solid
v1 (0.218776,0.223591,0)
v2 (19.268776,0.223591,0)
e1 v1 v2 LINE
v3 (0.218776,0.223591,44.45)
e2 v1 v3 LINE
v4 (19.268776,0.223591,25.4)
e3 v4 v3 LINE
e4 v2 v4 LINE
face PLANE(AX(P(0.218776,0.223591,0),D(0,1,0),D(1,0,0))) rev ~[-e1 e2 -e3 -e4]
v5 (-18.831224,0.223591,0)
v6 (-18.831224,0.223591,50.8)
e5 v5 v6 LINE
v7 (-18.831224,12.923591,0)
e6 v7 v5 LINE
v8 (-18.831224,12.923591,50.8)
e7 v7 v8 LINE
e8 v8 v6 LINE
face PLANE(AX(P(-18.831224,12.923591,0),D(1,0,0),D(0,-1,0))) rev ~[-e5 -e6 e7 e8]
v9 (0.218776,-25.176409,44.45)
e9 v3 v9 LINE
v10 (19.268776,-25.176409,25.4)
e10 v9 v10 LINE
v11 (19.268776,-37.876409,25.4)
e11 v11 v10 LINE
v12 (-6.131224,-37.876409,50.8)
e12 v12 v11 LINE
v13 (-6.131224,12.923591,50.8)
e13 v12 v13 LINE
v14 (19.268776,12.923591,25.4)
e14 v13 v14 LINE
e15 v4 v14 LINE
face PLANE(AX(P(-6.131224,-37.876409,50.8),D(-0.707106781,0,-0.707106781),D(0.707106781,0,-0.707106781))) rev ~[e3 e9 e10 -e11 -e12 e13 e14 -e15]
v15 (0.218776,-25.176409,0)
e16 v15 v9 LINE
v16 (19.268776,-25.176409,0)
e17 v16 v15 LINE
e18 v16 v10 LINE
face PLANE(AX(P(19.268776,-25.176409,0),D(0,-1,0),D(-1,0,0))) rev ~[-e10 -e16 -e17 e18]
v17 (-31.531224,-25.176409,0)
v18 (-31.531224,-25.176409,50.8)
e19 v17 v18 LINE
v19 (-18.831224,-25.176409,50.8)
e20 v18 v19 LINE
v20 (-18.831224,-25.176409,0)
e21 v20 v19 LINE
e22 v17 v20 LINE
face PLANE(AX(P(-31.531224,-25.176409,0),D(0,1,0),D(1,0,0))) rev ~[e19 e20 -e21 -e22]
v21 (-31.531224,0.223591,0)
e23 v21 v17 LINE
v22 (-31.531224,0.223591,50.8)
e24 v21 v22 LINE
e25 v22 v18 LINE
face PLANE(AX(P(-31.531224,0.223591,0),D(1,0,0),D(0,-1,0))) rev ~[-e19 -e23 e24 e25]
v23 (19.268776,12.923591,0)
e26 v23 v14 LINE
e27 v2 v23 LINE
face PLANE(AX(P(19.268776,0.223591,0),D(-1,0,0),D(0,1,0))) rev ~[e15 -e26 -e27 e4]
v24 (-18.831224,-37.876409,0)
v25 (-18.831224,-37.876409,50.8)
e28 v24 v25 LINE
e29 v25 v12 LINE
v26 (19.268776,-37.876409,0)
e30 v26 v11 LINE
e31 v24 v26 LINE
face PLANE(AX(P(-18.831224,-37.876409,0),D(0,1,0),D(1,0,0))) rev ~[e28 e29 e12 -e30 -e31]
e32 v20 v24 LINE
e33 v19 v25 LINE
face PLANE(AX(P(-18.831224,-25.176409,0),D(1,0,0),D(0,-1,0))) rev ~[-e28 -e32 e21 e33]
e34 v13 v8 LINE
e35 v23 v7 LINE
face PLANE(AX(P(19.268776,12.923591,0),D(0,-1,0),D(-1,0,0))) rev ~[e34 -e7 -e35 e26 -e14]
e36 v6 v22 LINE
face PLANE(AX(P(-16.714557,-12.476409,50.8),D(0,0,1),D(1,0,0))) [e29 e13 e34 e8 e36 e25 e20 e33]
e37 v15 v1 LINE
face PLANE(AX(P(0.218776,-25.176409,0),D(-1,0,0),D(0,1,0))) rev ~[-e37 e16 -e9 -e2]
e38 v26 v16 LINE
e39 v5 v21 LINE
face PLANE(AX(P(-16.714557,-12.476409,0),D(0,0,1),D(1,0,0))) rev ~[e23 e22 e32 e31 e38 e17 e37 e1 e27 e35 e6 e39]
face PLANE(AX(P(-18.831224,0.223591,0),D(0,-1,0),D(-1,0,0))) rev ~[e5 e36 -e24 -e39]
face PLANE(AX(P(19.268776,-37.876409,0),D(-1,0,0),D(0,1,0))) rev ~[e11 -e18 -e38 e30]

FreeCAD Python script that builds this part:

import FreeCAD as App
import Part
import Sketcher
Q = App.Units.Quantity

doc = App.newDocument("Part")
params = doc.addObject("Spreadsheet::Sheet", "Params")
for row, (alias, value) in enumerate([
    ("sketch1_height", "1 in"),
    ("sketch1_width", "0.5 in"),
    ("sketch1_width2", "1.5 in"),
    ("sketch1_width3", "0.75 in"),
    ("pad1_length", "2 in"),
    ("sketch2_width", "1 in"),
], start=1):
    params.set(f"A{row}", alias)
    params.set(f"B{row}", "=" + value)
    params.setAlias(f"B{row}", alias)

body = doc.addObject("PartDesign::Body", "Body")

# Sketch on XY plane
sketch1 = body.newObject("Sketcher::SketchObject", "Sketch")
sketch1.AttachmentSupport = (doc.getObject("XY_Plane"), [""])
sketch1.MapMode = "FlatFace"
sketch1.addGeometry([
    Part.LineSegment(App.Vector(-19, 13, 0), App.Vector(-19, 0, 0)),  # 0
    Part.LineSegment(App.Vector(-19, 0, 0), App.Vector(-32, 0, 0)),  # 1
    Part.LineSegment(App.Vector(-32, 0, 0), App.Vector(-32, -25, 0)),  # 2
    Part.LineSegment(App.Vector(-32, -25, 0), App.Vector(-19, -25, 0)),  # 3
    Part.LineSegment(App.Vector(-19, -25, 0), App.Vector(-19, -38, 0)),  # 4
    Part.LineSegment(App.Vector(-19, -38, 0), App.Vector(19, -38, 0)),  # 5
    Part.LineSegment(App.Vector(19, -38, 0), App.Vector(19, -25, 0)),  # 6
    Part.LineSegment(App.Vector(19, -25, 0), App.Vector(0, -25, 0)),  # 7
    Part.LineSegment(App.Vector(0, -25, 0), App.Vector(0, 0, 0)),  # 8
    Part.LineSegment(App.Vector(0, 0, 0), App.Vector(19, 0, 0)),  # 9
    Part.LineSegment(App.Vector(19, 0, 0), App.Vector(19, 13, 0)),  # 10
    Part.LineSegment(App.Vector(19, 13, 0), App.Vector(-19, 13, 0)),  # 11
], False)
sketch1.addConstraint([
    Sketcher.Constraint("Coincident", 0, 2, 1, 1),
    Sketcher.Constraint("Coincident", 1, 2, 2, 1),
    Sketcher.Constraint("Coincident", 2, 2, 3, 1),
    Sketcher.Constraint("Coincident", 3, 2, 4, 1),
    Sketcher.Constraint("Coincident", 4, 2, 5, 1),
    Sketcher.Constraint("Coincident", 5, 2, 6, 1),
    Sketcher.Constraint("Coincident", 6, 2, 7, 1),
    Sketcher.Constraint("Coincident", 7, 2, 8, 1),
    Sketcher.Constraint("Coincident", 8, 2, 9, 1),
    Sketcher.Constraint("Coincident", 9, 2, 10, 1),
    Sketcher.Constraint("Coincident", 10, 2, 11, 1),
    Sketcher.Constraint("Coincident", 11, 2, 0, 1),
    Sketcher.Constraint("Vertical", 0),
    Sketcher.Constraint("Horizontal", 1),
    Sketcher.Constraint("Vertical", 2),
    Sketcher.Constraint("Horizontal", 3),
    Sketcher.Constraint("Vertical", 4),
    Sketcher.Constraint("Horizontal", 5),
    Sketcher.Constraint("Vertical", 6),
    Sketcher.Constraint("Horizontal", 7),
    Sketcher.Constraint("Vertical", 8),
    Sketcher.Constraint("Horizontal", 9),
    Sketcher.Constraint("Vertical", 10),
    Sketcher.Constraint("Horizontal", 11),
    Sketcher.Constraint("Horizontal", 3, 2, 6, 2),
    Sketcher.Constraint("Horizontal", 1, 2, 8, 2),
    Sketcher.Constraint("Vertical", 0, 2, 3, 2),
    Sketcher.Constraint("Vertical", 6, 2, 9, 2),
    Sketcher.Constraint("Equal", 3, 0),
    Sketcher.Constraint("Equal", 0, 4),
    Sketcher.Constraint("DistanceY", 2, 2, 2, 1, Q("1 in")),
    Sketcher.Constraint("DistanceX", 1, 2, 1, 1, Q("0.5 in")),
    Sketcher.Constraint("DistanceX", 5, 1, 5, 2, Q("1.5 in")),
    Sketcher.Constraint("DistanceX", 7, 2, 7, 1, Q("0.75 in")),
    Sketcher.Constraint("DistanceY", -1, 1, 0, 2, Q("0.223591 mm")),
    Sketcher.Constraint("DistanceX", 0, 2, -1, 1, Q("18.831224 mm")),
])
sketch1.setExpression("Constraints[30]", "Params.sketch1_height")
sketch1.setExpression("Constraints[31]", "Params.sketch1_width")
sketch1.setExpression("Constraints[32]", "Params.sketch1_width2")
sketch1.setExpression("Constraints[33]", "Params.sketch1_width3")
pad1 = body.newObject("PartDesign::Pad", "Pad")
pad1.Profile = sketch1
pad1.setExpression("Length", "Params.pad1_length")

# Sketch on XZ plane
sketch2 = body.newObject("Sketcher::SketchObject", "Sketch001")
sketch2.AttachmentSupport = (doc.getObject("XZ_Plane"), [""])
sketch2.MapMode = "FlatFace"
sketch2.AttachmentOffset = App.Placement(App.Vector(0, 0, 37.876409), App.Rotation())
sketch2.addGeometry([
    Part.LineSegment(App.Vector(19, 51, 0), App.Vector(-6, 51, 0)),
    Part.LineSegment(App.Vector(-6, 51, 0), App.Vector(19, 25, 0)),
    Part.LineSegment(App.Vector(19, 25, 0), App.Vector(19, 51, 0)),
], False)
sketch2.addConstraint([
    Sketcher.Constraint("Coincident", 0, 2, 1, 1),
    Sketcher.Constraint("Coincident", 1, 2, 2, 1),
    Sketcher.Constraint("Coincident", 2, 2, 0, 1),
    Sketcher.Constraint("Horizontal", 0),
    Sketcher.Constraint("Vertical", 2),
    Sketcher.Constraint("Equal", 0, 2),
    Sketcher.Constraint("DistanceX", 0, 2, 0, 1, Q("1 in")),
    Sketcher.Constraint("DistanceY", -1, 1, 0, 2, Q("2 in")),
    Sketcher.Constraint("DistanceX", 0, 2, -1, 1, Q("6.131224 mm")),
])
sketch2.setExpression("Constraints[6]", "Params.sketch2_width")
pocket1 = body.newObject("PartDesign::Pocket", "Pocket")
pocket1.Profile = sketch2
pocket1.Type = "ThroughAll"

doc.recompute()
